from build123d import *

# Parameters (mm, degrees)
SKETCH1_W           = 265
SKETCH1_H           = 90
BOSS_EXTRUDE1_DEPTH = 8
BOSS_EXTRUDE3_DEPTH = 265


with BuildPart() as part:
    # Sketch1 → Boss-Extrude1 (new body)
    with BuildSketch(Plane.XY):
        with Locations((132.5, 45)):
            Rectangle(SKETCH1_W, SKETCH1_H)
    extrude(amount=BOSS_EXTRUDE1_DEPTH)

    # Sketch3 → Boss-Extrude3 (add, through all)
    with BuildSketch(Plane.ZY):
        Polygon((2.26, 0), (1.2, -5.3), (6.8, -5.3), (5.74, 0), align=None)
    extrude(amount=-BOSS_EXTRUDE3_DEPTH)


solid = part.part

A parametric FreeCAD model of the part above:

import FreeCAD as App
import Part
import Sketcher

V = App.Vector
Q = App.Units.Quantity


def add_polygon(sketch, points):
    """Adds a closed chain of lines whose ends are joined by coincident constraints."""
    first, n = sketch.GeometryCount, len(points)
    for a, b in zip(points, points[1:] + points[:1]):
        sketch.addGeometry(Part.LineSegment(App.Vector(*a, 0), App.Vector(*b, 0)), False)
    for i in range(n):
        sketch.addConstraint(Sketcher.Constraint("Coincident", first + i, 2, first + (i + 1) % n, 1))

doc = App.newDocument("Part")
body = doc.addObject("PartDesign::Body", "Body")

sketch1 = body.newObject("Sketcher::SketchObject", "Sketch")
sketch1.AttachmentSupport = (doc.getObject("XY_Plane"), [""])
sketch1.MapMode = "FlatFace"
add_polygon(sketch1, [(0, 90), (0, 0), (265, 0), (265, 90)])
sketch1.addConstraint(Sketcher.Constraint("Vertical", 0))
sketch1.addConstraint(Sketcher.Constraint("Horizontal", 1))
sketch1.addConstraint(Sketcher.Constraint("Vertical", 2))
sketch1.addConstraint(Sketcher.Constraint("Horizontal", 3))
sketch1.addConstraint(Sketcher.Constraint("Coincident", 0, 2, -1, 1))
sketch1.addConstraint(Sketcher.Constraint("DistanceX", 1, 1, 1, 2, Q("265 mm")))
sketch1.addConstraint(Sketcher.Constraint("DistanceY", 0, 2, 0, 1, Q("90 mm")))
pad1 = body.newObject("PartDesign::Pad", "Pad")
pad1.Profile = sketch1
pad1.Length = 8

sketch2 = body.newObject("Sketcher::SketchObject", "Sketch001")
sketch2.AttachmentSupport = (doc.getObject("YZ_Plane"), [""])
sketch2.MapMode = "FlatFace"
add_polygon(sketch2, [(0, 2.26), (-5.3, 1.2), (-5.3, 6.8), (0, 5.74)])
sketch2.addConstraint(Sketcher.Constraint("Vertical", 1))
sketch2.addConstraint(Sketcher.Constraint("Vertical", 3))
sketch2.addConstraint(Sketcher.Constraint("PointOnObject", 2, 2, -2))
sketch2.addConstraint(Sketcher.Constraint("Equal", 0, 2))
sketch2.addConstraint(Sketcher.Constraint("DistanceY", 1, 1, 1, 2, Q("5.6 mm")))
sketch2.addConstraint(Sketcher.Constraint("DistanceY", 3, 2, 3, 1, Q("3.48 mm")))
sketch2.addConstraint(Sketcher.Constraint("DistanceX", 0, 2, -1, 1, Q("5.3 mm")))
sketch2.addConstraint(Sketcher.Constraint("DistanceY", -1, 1, 0, 2, Q("1.2 mm")))
pad2 = body.newObject("PartDesign::Pad", "Pad001")
pad2.Profile = sketch2
pad2.Length = 265

doc.recompute()
